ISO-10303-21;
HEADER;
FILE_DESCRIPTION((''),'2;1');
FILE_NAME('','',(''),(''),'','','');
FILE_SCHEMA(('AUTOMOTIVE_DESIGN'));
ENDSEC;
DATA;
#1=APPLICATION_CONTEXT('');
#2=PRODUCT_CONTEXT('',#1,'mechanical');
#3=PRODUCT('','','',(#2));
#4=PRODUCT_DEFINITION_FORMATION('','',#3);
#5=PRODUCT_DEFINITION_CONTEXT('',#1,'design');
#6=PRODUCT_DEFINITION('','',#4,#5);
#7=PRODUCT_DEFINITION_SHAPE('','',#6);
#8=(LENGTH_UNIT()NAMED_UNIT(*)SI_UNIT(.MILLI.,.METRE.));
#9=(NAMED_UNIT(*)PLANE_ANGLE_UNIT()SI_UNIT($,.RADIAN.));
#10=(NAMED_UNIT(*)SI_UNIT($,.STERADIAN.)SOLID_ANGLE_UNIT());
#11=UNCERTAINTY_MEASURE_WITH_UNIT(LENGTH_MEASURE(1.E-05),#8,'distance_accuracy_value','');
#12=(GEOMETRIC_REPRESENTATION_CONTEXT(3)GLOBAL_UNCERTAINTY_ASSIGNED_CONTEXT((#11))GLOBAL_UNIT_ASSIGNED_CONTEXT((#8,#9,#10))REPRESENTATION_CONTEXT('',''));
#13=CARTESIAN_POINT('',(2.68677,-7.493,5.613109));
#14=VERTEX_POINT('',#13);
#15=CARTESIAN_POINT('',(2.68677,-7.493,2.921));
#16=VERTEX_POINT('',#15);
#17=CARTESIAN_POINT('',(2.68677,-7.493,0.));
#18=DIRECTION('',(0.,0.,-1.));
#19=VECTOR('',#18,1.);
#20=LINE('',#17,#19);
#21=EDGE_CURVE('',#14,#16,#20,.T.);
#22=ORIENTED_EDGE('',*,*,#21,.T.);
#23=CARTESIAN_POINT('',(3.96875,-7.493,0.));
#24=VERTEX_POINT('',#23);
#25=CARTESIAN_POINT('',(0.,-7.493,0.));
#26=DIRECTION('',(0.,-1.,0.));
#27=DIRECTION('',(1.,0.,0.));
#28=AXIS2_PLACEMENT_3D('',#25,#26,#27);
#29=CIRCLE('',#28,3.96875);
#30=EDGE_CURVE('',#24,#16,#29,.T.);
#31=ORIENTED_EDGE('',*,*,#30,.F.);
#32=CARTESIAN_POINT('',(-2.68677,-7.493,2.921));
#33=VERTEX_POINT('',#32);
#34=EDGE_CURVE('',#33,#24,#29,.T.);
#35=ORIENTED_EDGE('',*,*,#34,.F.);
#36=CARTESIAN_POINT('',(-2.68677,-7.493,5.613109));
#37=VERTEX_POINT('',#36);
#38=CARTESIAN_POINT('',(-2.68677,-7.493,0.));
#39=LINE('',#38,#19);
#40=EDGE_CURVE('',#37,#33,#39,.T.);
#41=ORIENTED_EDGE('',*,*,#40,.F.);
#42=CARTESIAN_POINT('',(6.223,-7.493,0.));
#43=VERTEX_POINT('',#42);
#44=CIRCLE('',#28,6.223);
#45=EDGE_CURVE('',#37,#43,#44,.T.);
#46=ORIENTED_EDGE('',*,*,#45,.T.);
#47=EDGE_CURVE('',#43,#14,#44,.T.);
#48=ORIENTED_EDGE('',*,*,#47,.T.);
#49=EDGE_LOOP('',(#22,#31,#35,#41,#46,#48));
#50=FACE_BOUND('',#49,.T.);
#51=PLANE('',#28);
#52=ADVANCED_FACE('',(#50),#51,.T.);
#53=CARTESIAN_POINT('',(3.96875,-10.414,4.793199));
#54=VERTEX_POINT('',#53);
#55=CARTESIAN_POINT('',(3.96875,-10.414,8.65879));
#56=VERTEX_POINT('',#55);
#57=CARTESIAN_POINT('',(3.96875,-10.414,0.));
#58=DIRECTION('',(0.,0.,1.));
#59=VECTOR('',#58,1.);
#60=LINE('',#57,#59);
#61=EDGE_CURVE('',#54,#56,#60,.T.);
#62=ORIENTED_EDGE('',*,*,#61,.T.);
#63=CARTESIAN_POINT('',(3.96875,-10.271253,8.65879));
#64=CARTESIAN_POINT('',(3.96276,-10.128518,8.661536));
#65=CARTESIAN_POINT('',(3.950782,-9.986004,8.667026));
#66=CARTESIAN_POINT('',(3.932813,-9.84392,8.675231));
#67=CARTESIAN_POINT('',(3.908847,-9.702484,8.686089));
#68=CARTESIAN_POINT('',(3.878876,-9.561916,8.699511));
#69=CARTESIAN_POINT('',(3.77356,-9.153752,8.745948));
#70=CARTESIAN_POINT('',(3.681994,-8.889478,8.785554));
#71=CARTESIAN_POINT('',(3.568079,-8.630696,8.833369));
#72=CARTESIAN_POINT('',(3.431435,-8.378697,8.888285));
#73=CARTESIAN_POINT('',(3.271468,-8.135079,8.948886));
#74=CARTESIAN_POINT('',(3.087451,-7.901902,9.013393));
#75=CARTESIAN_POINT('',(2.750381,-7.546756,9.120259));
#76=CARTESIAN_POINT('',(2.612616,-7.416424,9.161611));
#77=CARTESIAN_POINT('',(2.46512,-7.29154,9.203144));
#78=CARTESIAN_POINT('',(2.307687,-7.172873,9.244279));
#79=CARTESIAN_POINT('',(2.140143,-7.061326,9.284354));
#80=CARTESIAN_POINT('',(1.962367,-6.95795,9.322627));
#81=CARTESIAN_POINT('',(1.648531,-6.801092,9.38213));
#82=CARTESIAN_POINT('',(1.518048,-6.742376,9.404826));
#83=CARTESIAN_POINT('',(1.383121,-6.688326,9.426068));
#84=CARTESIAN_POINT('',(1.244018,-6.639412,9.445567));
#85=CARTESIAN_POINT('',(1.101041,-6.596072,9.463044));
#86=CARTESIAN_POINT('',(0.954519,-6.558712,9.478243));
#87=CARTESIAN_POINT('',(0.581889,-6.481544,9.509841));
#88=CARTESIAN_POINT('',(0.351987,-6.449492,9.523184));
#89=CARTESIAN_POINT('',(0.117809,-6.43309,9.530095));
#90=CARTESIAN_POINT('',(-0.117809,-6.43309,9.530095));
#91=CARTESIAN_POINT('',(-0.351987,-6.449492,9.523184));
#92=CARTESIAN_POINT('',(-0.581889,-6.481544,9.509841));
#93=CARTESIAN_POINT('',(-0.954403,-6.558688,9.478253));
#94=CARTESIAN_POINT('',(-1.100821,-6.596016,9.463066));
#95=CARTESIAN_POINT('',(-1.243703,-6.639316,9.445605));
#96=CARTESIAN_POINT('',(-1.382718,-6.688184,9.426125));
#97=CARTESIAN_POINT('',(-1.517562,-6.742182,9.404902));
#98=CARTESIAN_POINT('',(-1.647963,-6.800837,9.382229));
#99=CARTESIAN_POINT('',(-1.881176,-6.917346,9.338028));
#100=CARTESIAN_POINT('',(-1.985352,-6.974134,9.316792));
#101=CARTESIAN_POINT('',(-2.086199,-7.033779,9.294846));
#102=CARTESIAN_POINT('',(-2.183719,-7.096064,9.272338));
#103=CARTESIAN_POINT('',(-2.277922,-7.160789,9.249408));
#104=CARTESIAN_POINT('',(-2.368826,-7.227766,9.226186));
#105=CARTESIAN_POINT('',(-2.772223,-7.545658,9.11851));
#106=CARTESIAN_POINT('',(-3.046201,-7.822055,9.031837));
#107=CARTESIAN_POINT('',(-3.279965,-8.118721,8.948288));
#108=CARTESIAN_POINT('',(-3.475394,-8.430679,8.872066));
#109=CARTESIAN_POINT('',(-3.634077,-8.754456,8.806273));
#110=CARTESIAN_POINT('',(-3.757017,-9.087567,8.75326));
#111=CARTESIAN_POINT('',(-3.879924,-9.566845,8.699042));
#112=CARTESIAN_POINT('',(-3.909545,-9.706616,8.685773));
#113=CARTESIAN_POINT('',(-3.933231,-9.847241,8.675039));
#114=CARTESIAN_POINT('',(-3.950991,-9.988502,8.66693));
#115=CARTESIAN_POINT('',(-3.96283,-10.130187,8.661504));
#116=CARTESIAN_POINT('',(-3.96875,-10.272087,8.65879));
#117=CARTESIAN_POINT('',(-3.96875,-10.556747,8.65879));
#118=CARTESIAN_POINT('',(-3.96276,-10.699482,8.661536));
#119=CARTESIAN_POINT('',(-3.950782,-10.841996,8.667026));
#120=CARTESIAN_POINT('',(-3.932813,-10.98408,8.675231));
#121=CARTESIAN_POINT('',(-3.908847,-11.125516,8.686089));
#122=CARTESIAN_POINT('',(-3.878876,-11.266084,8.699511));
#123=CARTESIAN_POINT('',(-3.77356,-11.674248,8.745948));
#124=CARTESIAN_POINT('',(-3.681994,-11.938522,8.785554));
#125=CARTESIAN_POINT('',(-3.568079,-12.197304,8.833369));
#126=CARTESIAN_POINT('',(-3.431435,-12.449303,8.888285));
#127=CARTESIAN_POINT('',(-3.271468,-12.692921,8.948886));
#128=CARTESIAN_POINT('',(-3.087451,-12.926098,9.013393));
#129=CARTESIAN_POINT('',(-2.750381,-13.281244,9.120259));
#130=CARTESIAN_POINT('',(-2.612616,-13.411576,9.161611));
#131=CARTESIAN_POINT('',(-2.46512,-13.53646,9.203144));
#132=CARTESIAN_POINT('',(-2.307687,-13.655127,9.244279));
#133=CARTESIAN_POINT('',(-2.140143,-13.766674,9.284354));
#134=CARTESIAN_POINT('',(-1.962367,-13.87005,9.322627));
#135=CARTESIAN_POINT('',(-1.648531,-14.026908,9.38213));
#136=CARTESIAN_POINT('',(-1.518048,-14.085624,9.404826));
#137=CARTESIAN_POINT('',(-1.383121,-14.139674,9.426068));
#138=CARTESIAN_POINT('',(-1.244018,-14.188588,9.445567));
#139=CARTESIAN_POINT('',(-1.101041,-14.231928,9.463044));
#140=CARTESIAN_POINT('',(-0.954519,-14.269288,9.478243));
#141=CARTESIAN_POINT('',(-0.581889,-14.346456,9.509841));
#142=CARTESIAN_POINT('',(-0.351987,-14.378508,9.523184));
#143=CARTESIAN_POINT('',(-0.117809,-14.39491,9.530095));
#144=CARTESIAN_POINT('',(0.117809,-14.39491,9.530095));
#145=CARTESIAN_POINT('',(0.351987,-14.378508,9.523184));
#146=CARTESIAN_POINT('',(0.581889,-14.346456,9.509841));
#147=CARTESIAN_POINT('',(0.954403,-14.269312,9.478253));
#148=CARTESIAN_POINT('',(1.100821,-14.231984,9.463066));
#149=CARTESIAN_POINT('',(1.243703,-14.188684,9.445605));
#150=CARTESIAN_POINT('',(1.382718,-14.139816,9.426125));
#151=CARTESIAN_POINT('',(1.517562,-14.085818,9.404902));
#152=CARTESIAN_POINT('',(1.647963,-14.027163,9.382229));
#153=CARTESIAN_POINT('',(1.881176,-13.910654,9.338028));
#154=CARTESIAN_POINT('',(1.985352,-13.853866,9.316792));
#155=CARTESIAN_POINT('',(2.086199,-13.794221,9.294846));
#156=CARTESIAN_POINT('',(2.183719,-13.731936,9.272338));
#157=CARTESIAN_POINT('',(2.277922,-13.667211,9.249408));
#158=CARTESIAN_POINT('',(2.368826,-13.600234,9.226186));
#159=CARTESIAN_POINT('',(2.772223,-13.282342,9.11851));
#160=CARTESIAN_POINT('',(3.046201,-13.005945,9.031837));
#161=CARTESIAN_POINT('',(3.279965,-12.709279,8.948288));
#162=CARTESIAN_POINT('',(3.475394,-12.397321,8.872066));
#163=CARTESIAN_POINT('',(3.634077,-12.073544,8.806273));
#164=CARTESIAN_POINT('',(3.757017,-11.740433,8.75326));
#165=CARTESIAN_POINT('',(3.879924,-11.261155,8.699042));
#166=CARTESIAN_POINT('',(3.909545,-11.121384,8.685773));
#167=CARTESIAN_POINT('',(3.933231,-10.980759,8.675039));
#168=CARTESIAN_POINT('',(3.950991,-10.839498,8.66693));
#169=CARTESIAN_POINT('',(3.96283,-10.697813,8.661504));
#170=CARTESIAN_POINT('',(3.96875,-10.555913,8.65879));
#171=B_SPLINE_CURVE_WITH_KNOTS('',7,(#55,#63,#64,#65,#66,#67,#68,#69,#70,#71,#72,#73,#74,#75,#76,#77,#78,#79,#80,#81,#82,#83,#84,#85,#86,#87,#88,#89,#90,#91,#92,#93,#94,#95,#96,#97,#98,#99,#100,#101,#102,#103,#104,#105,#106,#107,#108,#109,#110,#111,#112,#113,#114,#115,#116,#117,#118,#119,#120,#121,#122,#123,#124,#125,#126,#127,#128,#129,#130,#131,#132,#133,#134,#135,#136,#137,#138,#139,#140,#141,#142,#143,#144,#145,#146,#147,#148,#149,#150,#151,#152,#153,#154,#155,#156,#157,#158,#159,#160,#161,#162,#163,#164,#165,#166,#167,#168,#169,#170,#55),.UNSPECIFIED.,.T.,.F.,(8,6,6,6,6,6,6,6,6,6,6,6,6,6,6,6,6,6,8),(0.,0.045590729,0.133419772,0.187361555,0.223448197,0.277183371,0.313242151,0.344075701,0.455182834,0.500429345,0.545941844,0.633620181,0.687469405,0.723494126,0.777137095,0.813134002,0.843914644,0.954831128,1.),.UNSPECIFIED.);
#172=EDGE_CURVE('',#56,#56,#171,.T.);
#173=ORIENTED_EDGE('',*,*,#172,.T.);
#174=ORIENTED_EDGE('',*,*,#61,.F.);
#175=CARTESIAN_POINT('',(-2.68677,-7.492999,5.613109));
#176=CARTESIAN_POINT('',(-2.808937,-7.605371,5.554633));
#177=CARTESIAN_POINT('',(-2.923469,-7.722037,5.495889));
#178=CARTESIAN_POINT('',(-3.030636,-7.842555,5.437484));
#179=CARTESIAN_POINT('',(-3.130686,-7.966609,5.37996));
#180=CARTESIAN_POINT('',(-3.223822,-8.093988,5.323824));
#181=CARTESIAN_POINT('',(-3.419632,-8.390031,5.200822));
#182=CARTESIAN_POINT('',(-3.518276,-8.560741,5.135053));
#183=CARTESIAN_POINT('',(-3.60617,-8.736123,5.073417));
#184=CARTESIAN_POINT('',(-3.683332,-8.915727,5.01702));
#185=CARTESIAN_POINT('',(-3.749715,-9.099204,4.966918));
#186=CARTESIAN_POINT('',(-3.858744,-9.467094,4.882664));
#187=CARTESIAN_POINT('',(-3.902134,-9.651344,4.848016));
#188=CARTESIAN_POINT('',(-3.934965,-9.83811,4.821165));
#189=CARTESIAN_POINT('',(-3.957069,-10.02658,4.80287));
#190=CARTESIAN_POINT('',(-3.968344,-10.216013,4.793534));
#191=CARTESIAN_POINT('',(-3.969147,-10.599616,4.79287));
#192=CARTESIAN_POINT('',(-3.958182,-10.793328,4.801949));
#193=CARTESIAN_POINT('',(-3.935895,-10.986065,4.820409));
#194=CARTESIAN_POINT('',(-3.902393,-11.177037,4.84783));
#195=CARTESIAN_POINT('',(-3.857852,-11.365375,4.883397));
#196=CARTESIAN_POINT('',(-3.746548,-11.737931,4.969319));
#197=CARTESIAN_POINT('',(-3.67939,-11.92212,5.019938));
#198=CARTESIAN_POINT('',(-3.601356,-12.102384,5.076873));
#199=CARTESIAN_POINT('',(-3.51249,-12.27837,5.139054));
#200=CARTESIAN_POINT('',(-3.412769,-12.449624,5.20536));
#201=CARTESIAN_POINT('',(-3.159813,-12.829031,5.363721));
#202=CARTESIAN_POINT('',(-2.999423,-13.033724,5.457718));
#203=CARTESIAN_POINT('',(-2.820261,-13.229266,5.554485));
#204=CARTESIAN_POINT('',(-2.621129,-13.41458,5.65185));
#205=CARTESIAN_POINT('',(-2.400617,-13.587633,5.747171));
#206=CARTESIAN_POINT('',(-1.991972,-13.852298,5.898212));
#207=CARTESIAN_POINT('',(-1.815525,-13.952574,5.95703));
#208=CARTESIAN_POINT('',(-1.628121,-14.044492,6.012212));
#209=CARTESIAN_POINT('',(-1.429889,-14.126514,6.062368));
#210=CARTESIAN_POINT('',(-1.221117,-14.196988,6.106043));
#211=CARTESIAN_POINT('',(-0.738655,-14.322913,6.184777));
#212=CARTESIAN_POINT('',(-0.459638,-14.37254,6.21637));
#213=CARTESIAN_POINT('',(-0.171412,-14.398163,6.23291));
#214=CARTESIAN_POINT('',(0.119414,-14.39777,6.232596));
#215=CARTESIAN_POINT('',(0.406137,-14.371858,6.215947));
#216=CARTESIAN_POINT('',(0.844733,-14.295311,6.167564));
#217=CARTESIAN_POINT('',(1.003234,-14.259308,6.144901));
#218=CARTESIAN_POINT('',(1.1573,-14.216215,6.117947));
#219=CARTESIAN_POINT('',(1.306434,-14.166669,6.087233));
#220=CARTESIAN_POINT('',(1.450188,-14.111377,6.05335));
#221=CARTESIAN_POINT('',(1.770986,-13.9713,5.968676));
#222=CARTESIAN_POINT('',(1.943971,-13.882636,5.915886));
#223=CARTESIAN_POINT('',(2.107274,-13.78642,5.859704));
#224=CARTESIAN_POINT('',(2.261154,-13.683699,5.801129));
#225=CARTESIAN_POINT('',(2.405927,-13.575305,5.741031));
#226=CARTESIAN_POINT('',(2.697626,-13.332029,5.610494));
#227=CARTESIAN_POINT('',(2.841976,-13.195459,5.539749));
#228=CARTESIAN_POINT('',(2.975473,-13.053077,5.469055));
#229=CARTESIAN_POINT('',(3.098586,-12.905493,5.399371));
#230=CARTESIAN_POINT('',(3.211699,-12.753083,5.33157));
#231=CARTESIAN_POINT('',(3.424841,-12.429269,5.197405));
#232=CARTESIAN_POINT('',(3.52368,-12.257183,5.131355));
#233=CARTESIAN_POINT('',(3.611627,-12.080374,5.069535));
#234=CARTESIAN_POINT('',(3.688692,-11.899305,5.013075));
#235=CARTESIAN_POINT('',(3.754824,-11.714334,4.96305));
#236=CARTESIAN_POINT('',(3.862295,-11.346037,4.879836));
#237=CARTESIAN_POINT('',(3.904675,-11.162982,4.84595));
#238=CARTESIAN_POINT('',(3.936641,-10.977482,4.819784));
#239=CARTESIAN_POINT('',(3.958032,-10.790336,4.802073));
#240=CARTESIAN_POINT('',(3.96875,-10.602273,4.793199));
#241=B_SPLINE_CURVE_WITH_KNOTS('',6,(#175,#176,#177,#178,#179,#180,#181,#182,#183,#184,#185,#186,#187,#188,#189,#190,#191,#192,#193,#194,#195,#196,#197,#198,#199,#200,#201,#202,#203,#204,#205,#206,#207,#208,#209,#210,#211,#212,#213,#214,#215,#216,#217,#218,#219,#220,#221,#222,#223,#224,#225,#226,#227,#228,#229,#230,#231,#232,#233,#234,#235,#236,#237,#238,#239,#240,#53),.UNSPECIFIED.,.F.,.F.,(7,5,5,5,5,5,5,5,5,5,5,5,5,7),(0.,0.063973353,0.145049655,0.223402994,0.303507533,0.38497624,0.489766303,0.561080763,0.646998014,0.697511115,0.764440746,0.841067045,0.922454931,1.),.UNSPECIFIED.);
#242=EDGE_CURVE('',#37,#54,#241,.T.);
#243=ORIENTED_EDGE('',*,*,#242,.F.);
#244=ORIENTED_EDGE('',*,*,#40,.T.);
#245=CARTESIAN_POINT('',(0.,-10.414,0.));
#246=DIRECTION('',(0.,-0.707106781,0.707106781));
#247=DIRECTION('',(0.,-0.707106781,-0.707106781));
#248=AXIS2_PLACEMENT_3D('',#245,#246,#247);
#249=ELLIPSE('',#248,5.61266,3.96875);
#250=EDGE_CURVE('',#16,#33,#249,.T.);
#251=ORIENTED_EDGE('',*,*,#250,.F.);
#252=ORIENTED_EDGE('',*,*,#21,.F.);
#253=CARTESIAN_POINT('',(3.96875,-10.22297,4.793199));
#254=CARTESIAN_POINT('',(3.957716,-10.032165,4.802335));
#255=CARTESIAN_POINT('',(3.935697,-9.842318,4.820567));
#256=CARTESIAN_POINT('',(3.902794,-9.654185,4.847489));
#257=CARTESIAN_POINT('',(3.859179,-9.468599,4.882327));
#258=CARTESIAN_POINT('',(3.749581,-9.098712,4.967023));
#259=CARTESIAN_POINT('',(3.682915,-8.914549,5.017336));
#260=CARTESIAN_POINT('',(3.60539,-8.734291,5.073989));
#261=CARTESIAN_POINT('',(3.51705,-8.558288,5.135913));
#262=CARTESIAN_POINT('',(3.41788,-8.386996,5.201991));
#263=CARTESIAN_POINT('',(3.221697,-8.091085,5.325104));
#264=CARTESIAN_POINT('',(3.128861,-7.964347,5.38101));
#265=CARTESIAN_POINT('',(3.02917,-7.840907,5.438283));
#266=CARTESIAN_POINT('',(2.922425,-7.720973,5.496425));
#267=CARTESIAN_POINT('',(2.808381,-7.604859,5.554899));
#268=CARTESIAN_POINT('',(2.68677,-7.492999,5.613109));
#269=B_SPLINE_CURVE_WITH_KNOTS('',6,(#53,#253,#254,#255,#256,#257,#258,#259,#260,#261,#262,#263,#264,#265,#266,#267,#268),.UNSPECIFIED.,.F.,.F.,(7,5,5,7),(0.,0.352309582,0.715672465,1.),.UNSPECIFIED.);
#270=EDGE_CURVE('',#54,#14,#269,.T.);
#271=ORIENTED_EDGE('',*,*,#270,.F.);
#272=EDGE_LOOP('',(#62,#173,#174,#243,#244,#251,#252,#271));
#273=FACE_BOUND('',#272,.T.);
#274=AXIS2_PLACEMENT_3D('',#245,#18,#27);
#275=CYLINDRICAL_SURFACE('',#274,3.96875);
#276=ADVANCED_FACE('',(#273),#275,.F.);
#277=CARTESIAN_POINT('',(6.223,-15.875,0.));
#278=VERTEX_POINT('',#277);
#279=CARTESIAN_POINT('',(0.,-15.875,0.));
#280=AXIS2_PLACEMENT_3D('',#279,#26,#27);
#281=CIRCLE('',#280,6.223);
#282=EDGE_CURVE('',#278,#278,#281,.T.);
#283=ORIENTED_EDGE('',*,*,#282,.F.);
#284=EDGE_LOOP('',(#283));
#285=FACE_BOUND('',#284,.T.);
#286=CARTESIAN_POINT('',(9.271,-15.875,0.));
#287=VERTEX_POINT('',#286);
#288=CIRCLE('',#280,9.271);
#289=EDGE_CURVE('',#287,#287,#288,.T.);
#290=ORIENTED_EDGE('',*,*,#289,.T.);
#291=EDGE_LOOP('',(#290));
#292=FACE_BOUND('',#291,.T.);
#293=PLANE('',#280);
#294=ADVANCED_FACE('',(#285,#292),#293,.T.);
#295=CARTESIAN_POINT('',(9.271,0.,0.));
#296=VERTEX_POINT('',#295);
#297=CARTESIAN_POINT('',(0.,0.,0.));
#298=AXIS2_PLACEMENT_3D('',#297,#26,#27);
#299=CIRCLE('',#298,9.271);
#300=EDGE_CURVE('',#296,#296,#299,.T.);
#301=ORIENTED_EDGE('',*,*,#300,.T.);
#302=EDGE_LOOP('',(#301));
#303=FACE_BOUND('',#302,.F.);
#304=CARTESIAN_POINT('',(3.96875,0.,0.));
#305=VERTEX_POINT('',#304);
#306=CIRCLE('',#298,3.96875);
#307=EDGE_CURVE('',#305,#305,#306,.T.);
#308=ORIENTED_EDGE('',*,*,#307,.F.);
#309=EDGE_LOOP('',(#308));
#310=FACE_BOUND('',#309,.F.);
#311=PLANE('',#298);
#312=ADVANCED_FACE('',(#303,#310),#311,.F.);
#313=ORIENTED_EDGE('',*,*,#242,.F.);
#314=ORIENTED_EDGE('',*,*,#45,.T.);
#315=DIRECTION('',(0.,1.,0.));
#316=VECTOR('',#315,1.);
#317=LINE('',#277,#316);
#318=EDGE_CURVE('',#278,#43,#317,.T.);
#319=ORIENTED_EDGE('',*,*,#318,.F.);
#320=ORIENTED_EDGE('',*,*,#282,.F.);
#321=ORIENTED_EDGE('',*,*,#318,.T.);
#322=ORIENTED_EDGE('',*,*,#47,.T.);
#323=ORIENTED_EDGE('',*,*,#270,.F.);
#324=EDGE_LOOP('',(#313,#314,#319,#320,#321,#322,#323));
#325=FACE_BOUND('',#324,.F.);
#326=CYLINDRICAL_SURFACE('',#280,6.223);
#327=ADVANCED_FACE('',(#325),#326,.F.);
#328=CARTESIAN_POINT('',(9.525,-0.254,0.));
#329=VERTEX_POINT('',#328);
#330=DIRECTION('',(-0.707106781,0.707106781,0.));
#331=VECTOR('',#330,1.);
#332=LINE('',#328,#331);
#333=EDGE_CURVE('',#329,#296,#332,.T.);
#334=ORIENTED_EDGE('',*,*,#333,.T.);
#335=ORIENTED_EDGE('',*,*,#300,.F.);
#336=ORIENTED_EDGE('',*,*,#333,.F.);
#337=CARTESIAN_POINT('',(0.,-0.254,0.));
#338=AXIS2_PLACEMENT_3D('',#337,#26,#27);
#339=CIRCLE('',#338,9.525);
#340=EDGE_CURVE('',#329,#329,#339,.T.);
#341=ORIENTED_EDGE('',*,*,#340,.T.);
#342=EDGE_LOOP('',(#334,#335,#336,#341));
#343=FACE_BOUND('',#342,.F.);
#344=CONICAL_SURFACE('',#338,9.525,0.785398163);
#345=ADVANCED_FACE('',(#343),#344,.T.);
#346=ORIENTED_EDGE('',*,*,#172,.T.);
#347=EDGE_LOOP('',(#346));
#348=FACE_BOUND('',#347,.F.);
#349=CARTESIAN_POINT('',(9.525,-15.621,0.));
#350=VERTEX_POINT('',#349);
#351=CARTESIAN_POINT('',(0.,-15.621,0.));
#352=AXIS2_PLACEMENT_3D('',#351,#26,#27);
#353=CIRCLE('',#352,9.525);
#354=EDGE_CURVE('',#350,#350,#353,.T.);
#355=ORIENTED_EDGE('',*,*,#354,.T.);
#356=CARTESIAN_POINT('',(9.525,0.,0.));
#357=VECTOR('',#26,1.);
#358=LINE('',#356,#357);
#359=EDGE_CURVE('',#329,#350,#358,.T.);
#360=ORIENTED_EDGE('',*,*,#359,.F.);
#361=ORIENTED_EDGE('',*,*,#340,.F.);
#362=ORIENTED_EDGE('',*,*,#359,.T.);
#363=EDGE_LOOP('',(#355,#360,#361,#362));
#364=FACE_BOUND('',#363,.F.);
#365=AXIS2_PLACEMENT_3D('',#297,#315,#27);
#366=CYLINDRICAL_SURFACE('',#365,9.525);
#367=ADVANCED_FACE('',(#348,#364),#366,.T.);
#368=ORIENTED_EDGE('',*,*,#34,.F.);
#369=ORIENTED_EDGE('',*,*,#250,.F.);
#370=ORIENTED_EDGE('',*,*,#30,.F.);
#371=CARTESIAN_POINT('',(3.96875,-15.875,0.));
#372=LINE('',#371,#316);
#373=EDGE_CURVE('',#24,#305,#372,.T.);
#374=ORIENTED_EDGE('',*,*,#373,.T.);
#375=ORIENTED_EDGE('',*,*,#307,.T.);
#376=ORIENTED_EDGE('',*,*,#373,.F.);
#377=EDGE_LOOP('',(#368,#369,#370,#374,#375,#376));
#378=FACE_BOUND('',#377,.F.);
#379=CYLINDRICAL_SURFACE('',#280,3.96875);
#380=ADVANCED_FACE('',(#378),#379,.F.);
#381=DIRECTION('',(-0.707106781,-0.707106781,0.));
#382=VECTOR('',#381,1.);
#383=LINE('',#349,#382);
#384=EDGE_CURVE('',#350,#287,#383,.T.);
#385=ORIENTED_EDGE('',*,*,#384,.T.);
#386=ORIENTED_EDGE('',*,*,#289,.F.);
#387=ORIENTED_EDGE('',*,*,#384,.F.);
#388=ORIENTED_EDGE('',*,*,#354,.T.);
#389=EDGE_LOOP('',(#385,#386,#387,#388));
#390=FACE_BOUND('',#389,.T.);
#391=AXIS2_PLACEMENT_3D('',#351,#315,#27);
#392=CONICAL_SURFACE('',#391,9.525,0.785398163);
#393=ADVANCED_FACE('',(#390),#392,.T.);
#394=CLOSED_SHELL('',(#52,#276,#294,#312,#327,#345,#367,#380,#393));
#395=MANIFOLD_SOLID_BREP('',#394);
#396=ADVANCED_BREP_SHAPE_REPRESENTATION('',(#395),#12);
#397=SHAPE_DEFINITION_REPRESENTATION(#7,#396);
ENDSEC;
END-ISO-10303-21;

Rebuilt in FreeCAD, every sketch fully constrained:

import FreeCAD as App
import Part
import Sketcher
from FreeCAD import Vector
Q = App.Units.Quantity


def edges_at(feature, points):
    """Names of the edges that pass closest to the given points."""
    edges = feature.Shape.Edges
    near = lambda p: min(range(len(edges)), key=lambda i: edges[i].distToShape(Part.Vertex(*p))[0])
    return sorted({f"Edge{near(p) + 1}" for p in points})

doc = App.newDocument("Part")
body = doc.addObject("PartDesign::Body", "Body")

# Sketch on XZ plane
sketch1 = body.newObject("Sketcher::SketchObject", "Sketch")
sketch1.AttachmentSupport = (doc.getObject("XZ_Plane"), [""])
sketch1.MapMode = "FlatFace"
sketch1.addGeometry(Part.Circle(Vector(0, 0, 0), Vector(0, 0, 1), 10), False)
sketch1.addConstraint([
    Sketcher.Constraint("Coincident", 0, 3, -1, 1),
    Sketcher.Constraint("Diameter", 0, Q("0.75 in")),
])
pad1 = body.newObject("PartDesign::Pad", "Pad")
pad1.Profile = sketch1
pad1.Length = Q("0.625 in")

# Sketch on XZ plane
sketch2 = body.newObject("Sketcher::SketchObject", "Sketch001")
sketch2.AttachmentSupport = (doc.getObject("XZ_Plane"), [""])
sketch2.MapMode = "FlatFace"
sketch2.AttachmentOffset = App.Placement(Vector(0, 0, 0.625 * 25.4), App.Rotation())
sketch2.addGeometry(Part.Circle(Vector(0, 0, 0), Vector(0, 0, 1), 4), False)
sketch2.addConstraint([
    Sketcher.Constraint("Coincident", 0, 3, -1, 1),
    Sketcher.Constraint("Diameter", 0, Q("0.3125 in")),
])
pocket1 = body.newObject("PartDesign::Pocket", "Pocket")
pocket1.Profile = sketch2
pocket1.Type = "ThroughAll"

# Sketch on XZ plane
sketch3 = body.newObject("Sketcher::SketchObject", "Sketch002")
sketch3.AttachmentSupport = (doc.getObject("XZ_Plane"), [""])
sketch3.MapMode = "FlatFace"
sketch3.AttachmentOffset = App.Placement(Vector(0, 0, 0.625 * 25.4), App.Rotation())
sketch3.addGeometry([
    Part.Circle(Vector(0, 0, 0), Vector(0, 0, 1), 6.2),
    Part.Circle(Vector(0, 0, 0), Vector(0, 0, 1), 4),
], False)
sketch3.addConstraint([
    Sketcher.Constraint("Coincident", 0, 3, -1, 1),
    Sketcher.Constraint("Coincident", 1, 3, -1, 1),
    Sketcher.Constraint("Diameter", 0, Q("0.49 in")),
    Sketcher.Constraint("Diameter", 1, Q("0.3125 in")),
])
pocket2 = body.newObject("PartDesign::Pocket", "Pocket001")
pocket2.Profile = sketch3
pocket2.Length = Q("0.33 in")
doc.recompute()

chamfer = body.newObject("PartDesign::Chamfer", "Chamfer")
chamfer.Base = (pocket2, edges_at(pocket2, [(-9.525, -15.875, 0), (-9.525, 0, 0)]))
chamfer.Size = Q("0.01 in")

# Sketch on XY plane
sketch4 = body.newObject("Sketcher::SketchObject", "Sketch003")
sketch4.AttachmentSupport = (doc.getObject("XY_Plane"), [""])
sketch4.MapMode = "FlatFace"
sketch4.addGeometry(Part.Circle(Vector(0, -10.4, 0), Vector(0, 0, 1), 4), False)
sketch4.addConstraint([
    Sketcher.Constraint("PointOnObject", 0, 3, -2),
    Sketcher.Constraint("Diameter", 0, Q("0.3125 in")),
    Sketcher.Constraint("DistanceY", 0, 3, -1, 1, Q("0.41 in")),
])
pocket3 = body.newObject("PartDesign::Pocket", "Pocket002")
pocket3.Profile = sketch4
pocket3.Length = 10.525
pocket3.Reversed = True

doc.recompute()
